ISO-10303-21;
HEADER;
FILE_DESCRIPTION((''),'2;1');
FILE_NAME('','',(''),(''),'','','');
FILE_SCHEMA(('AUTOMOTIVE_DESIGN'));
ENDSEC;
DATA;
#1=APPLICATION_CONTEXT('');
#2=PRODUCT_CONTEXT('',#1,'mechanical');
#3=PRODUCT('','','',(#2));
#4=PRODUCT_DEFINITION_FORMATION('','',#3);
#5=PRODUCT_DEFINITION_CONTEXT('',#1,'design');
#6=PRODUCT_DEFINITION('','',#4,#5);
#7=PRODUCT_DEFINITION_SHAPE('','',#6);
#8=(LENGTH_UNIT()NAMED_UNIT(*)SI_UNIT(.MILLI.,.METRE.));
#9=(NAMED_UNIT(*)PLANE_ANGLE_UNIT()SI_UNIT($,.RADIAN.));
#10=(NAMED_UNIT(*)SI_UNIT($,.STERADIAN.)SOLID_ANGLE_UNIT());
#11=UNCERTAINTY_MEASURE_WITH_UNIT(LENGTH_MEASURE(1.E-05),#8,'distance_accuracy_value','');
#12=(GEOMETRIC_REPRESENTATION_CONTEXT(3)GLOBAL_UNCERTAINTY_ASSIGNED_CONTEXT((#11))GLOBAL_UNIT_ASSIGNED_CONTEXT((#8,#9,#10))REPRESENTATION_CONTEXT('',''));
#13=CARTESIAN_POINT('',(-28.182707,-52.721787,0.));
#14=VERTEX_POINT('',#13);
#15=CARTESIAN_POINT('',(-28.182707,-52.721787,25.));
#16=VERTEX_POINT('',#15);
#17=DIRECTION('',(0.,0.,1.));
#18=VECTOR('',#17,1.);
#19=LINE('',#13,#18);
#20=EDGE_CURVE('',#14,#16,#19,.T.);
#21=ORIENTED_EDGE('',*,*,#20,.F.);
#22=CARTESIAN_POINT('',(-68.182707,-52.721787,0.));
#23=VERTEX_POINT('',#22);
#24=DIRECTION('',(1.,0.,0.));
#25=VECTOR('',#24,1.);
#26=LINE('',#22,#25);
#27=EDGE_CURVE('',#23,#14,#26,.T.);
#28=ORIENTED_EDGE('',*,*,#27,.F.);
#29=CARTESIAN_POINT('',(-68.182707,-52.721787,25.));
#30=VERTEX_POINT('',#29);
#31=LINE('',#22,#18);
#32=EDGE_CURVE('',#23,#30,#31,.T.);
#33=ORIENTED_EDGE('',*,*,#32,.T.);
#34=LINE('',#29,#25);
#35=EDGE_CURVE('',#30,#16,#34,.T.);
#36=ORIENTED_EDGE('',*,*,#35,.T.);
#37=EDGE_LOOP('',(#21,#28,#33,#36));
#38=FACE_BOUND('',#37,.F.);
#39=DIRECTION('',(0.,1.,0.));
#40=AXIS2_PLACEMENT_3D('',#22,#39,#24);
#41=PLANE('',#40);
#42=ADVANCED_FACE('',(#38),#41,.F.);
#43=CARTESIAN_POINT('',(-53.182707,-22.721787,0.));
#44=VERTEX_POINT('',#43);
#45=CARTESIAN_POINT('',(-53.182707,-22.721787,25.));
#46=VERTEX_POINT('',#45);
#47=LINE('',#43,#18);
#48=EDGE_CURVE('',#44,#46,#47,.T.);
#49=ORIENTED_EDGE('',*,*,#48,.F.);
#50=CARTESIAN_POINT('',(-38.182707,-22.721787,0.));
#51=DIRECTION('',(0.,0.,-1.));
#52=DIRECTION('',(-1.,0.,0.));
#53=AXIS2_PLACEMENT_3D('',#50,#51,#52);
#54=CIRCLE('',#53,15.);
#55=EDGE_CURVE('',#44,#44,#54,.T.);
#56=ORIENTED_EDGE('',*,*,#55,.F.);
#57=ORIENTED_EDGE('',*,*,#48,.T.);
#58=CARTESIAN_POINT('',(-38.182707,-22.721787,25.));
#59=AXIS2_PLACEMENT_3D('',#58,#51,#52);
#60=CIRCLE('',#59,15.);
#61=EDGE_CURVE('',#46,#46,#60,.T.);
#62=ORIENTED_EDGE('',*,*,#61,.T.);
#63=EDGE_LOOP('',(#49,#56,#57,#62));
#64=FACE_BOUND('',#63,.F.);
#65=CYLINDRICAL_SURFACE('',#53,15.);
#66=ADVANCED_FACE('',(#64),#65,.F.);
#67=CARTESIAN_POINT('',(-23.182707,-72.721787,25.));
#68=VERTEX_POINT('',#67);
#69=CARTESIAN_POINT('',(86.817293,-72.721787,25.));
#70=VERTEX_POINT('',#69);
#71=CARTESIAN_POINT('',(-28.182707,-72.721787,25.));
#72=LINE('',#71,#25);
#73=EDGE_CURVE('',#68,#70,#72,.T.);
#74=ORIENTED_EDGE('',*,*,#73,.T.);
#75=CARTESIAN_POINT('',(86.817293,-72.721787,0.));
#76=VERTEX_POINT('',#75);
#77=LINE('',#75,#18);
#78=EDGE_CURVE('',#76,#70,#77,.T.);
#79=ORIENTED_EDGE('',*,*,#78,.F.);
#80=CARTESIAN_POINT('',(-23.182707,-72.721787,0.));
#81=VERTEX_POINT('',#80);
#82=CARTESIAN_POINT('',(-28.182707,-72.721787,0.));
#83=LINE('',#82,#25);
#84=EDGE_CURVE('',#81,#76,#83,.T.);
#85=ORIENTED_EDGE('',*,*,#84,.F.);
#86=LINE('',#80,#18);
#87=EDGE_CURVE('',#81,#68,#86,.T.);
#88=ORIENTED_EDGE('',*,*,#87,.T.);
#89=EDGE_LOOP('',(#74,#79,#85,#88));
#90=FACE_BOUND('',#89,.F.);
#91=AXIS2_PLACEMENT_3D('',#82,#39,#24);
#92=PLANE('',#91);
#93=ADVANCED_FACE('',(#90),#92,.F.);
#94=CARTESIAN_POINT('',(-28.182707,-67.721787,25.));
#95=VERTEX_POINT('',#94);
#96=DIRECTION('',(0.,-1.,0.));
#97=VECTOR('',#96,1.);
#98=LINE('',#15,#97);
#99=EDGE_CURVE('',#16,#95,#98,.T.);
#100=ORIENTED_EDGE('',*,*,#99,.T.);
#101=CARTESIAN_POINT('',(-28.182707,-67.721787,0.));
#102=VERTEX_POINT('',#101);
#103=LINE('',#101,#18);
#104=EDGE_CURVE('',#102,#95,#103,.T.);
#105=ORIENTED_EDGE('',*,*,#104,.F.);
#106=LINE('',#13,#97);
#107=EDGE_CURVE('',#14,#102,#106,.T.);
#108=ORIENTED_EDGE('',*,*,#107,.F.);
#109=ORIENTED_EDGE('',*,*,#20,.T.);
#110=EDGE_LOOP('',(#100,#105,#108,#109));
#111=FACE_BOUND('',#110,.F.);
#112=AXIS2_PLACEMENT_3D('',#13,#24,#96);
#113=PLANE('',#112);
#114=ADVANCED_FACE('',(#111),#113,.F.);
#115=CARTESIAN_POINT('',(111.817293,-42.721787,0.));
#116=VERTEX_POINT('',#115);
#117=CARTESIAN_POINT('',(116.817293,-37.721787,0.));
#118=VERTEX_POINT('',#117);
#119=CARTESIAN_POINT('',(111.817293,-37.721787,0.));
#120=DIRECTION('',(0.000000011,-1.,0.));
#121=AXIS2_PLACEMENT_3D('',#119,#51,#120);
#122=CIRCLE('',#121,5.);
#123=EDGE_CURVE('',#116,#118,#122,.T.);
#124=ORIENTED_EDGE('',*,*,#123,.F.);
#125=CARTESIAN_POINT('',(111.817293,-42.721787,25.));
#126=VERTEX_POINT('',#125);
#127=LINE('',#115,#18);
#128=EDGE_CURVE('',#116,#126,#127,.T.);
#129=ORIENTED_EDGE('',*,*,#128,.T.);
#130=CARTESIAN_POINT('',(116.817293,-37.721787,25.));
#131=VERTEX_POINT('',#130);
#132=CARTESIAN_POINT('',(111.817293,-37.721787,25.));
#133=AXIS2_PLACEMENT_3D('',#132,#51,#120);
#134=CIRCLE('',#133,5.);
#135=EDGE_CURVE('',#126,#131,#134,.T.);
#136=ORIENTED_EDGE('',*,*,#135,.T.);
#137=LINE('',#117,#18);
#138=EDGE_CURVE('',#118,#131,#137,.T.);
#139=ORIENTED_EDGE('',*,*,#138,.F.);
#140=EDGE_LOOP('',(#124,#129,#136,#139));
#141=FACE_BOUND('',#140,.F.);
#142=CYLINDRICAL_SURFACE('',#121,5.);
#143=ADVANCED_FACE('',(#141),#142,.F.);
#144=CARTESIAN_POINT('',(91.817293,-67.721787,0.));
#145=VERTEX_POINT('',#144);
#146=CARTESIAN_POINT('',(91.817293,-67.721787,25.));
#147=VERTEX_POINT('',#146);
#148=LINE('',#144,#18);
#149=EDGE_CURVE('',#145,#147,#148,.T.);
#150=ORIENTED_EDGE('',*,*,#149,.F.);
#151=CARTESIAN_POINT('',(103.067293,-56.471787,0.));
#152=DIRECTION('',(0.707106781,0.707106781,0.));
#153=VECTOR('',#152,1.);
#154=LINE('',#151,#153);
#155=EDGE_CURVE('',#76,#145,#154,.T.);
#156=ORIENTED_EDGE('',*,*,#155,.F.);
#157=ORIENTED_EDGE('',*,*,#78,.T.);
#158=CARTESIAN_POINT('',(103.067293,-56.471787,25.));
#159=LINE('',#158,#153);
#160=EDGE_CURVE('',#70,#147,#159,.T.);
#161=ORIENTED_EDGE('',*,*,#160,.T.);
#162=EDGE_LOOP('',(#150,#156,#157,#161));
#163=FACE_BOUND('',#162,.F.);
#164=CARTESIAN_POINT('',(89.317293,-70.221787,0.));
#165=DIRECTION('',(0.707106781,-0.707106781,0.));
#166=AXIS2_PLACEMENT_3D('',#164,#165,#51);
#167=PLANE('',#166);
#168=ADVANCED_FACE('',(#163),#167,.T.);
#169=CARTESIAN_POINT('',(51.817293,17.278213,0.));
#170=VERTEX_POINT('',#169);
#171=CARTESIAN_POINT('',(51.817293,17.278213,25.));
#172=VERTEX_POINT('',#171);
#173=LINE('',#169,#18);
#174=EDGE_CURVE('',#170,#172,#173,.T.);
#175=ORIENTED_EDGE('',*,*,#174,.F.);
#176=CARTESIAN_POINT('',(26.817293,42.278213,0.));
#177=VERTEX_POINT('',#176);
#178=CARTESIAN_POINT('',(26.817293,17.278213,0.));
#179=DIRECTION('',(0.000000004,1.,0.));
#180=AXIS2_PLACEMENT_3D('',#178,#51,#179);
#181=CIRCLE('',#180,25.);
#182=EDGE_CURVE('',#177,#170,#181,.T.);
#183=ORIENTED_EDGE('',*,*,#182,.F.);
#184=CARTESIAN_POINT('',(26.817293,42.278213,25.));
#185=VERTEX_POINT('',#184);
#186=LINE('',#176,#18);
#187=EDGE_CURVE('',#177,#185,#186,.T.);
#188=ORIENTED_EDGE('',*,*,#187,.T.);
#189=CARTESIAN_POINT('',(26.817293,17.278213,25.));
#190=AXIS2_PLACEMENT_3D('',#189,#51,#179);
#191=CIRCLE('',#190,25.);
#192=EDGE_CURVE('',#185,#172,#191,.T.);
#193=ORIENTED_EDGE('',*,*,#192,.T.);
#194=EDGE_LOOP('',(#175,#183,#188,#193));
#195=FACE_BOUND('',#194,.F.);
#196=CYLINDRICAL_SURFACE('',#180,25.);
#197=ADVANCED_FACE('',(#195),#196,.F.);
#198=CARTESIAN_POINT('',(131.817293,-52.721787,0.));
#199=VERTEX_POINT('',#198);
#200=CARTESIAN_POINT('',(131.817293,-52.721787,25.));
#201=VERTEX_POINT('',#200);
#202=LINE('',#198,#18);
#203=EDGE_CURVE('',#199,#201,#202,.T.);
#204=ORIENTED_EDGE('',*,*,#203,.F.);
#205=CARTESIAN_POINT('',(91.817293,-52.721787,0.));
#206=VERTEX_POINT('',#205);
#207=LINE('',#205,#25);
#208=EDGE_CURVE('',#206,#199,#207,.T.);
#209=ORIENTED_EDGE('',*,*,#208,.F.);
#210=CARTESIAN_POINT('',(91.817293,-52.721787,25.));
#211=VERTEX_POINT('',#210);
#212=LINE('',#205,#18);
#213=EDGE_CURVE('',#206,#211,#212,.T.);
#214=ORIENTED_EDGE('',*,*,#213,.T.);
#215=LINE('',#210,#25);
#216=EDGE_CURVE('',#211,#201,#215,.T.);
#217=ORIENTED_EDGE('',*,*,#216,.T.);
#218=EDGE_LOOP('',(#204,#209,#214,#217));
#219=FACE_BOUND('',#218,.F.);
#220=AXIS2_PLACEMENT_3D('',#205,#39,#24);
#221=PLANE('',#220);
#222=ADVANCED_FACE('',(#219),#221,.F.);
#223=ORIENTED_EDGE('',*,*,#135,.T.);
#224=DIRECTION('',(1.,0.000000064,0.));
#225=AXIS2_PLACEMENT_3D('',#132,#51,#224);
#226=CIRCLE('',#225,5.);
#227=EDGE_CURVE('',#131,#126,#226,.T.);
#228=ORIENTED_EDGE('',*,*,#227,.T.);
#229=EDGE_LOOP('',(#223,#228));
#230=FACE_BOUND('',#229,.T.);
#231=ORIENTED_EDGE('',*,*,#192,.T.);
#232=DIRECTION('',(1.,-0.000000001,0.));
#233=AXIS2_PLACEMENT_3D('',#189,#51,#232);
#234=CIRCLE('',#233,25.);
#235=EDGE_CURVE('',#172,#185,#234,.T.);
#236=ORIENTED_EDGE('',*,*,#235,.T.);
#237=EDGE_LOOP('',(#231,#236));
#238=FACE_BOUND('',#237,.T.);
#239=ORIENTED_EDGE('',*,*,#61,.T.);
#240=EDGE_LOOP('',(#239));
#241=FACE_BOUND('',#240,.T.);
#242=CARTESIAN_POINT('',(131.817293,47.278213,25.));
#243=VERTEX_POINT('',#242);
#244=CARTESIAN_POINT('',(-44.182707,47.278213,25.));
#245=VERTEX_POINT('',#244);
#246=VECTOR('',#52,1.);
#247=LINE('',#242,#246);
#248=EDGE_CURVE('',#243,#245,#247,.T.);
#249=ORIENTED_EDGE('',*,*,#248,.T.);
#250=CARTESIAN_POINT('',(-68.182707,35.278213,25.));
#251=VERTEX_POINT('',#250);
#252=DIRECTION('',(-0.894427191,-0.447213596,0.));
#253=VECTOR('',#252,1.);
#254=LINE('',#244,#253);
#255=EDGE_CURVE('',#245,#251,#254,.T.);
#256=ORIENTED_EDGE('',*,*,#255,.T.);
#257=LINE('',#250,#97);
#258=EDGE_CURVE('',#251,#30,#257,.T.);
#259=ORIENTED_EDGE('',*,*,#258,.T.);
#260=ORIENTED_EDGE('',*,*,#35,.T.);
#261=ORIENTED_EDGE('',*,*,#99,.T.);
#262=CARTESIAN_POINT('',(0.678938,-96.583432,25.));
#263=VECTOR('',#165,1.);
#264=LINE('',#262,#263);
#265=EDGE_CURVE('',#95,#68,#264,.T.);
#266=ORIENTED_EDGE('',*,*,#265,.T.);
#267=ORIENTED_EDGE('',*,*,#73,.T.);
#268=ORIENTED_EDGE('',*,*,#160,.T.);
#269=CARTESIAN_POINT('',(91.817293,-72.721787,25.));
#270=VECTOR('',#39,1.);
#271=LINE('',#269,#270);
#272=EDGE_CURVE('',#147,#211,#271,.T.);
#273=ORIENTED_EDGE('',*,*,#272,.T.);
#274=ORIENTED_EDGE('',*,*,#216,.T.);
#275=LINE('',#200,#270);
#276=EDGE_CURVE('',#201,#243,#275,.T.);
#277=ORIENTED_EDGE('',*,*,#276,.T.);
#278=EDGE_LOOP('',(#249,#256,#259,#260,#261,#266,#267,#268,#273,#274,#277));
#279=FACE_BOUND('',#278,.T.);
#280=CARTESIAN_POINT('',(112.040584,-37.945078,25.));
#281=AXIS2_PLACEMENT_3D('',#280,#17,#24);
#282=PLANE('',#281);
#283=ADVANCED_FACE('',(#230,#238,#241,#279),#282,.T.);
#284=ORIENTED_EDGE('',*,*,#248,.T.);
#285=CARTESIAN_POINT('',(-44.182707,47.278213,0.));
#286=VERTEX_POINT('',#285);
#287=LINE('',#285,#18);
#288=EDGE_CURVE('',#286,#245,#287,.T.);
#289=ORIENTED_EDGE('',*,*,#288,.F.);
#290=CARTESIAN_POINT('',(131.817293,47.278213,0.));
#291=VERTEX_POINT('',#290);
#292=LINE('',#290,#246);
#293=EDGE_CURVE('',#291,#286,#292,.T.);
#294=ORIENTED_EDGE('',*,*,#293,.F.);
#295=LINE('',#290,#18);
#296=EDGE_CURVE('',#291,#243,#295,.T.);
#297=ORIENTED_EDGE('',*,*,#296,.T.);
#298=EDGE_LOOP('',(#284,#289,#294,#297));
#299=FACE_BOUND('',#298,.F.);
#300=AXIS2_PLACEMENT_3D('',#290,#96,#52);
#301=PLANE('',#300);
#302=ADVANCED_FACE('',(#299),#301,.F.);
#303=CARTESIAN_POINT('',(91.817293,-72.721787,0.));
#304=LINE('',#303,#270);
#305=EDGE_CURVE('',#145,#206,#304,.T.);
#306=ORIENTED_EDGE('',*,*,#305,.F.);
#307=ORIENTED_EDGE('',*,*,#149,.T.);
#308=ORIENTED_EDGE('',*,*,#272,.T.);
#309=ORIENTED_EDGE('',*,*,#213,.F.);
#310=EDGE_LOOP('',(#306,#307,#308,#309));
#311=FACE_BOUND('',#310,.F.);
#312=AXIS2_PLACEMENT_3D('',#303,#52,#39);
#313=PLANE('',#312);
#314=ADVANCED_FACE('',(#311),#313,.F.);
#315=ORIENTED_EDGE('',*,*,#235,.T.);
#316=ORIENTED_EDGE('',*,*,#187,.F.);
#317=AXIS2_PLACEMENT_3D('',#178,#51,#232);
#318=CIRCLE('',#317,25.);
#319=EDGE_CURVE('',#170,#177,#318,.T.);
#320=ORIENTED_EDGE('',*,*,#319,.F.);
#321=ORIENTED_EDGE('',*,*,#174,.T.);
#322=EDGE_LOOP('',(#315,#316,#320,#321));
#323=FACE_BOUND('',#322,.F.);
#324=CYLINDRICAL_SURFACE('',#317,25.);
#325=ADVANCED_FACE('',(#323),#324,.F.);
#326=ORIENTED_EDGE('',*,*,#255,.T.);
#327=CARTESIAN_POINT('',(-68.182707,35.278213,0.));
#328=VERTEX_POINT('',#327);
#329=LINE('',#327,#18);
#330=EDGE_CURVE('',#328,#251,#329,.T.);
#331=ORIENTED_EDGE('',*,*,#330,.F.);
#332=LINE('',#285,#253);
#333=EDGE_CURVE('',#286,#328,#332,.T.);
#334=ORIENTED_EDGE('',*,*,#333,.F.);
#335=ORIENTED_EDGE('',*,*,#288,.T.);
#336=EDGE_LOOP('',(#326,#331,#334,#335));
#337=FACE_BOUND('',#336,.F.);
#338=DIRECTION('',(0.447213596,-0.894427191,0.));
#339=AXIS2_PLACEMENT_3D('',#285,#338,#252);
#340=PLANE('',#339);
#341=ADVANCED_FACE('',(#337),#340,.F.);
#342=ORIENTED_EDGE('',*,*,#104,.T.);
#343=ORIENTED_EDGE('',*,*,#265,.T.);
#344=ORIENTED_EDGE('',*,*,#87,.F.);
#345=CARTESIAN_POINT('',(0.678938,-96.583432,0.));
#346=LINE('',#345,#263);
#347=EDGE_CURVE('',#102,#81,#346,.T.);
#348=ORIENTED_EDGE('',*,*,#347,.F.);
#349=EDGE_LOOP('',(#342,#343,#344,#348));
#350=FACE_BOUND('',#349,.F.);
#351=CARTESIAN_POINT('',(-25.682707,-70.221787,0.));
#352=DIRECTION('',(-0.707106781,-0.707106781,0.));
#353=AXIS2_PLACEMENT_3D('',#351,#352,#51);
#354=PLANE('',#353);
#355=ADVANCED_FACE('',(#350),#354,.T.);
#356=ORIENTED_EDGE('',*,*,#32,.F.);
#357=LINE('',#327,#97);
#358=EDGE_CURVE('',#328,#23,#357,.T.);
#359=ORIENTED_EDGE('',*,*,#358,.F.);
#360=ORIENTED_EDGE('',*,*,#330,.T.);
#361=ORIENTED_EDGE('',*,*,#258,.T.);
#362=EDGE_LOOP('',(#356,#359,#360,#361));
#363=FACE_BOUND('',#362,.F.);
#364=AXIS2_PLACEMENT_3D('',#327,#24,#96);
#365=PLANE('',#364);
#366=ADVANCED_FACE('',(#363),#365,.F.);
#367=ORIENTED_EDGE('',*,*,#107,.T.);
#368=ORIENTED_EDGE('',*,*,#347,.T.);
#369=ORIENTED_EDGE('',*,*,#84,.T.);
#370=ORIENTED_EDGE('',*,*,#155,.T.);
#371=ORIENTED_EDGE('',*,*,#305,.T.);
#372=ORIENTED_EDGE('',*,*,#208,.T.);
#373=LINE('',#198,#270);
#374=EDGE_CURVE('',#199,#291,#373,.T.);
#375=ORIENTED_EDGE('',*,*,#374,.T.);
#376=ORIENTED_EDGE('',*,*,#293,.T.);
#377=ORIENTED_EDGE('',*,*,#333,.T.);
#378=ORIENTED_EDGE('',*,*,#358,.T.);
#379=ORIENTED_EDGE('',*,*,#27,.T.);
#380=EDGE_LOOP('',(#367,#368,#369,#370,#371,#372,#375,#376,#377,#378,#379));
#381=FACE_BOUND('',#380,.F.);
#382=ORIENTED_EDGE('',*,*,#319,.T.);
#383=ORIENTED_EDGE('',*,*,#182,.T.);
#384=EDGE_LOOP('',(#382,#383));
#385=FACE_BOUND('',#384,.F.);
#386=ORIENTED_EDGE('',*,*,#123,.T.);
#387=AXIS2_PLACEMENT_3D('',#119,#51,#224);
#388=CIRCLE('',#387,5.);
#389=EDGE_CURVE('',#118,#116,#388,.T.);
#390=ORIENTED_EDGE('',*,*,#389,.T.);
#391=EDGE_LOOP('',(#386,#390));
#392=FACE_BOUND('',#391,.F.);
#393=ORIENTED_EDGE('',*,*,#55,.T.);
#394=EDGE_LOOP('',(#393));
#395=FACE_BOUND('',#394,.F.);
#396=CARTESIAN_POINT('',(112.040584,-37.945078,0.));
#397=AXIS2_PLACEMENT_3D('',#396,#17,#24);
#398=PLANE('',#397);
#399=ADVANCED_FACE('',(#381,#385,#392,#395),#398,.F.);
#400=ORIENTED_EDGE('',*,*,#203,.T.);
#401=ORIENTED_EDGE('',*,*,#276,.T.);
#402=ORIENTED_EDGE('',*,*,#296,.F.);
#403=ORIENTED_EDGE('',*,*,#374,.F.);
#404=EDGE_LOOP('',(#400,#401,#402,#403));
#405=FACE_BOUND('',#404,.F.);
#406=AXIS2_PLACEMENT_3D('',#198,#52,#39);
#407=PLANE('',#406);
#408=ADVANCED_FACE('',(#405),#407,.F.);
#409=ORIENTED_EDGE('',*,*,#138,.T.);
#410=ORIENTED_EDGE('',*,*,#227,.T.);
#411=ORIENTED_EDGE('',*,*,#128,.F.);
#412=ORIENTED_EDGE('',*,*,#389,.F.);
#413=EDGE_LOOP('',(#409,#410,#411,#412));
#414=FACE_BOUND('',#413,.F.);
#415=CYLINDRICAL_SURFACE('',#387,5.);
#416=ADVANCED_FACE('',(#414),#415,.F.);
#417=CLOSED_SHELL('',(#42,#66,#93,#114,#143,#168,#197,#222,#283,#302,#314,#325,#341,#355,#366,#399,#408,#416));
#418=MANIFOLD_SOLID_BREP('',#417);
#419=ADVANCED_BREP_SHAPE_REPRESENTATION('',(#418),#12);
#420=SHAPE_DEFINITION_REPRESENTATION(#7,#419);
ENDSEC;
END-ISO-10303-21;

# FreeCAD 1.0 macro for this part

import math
import FreeCAD as App
import Part
import Sketcher
from FreeCAD import Vector


def edges_at(feature, points):
    """Names of the edges that pass closest to the given points."""
    edges = feature.Shape.Edges
    near = lambda p: min(range(len(edges)), key=lambda i: edges[i].distToShape(Part.Vertex(*p))[0])
    return sorted({f"Edge{near(p) + 1}" for p in points})


def add_polygon(sketch, points):
    """Adds a closed chain of lines whose ends are joined by coincident constraints."""
    first, n = sketch.GeometryCount, len(points)
    for a, b in zip(points, points[1:] + points[:1]):
        sketch.addGeometry(Part.LineSegment(App.Vector(*a, 0), App.Vector(*b, 0)), False)
    for i in range(n):
        sketch.addConstraint(Sketcher.Constraint("Coincident", first + i, 2, first + (i + 1) % n, 1))

doc = App.newDocument("Part")
body = doc.addObject("PartDesign::Body", "Body")

# Sketch on XY plane
sketch1 = body.newObject("Sketcher::SketchObject", "Sketch")
sketch1.AttachmentSupport = (doc.getObject("XY_Plane"), [""])
sketch1.MapMode = "FlatFace"
add_polygon(sketch1, [(-68.2, -52.7), (-28.2, -52.7), (-28.2, -72.7), (91.8, -72.7), (91.8, -52.7), (131.8, -52.7), (131.8, 47.3), (-44.2, 47.3), (-68.2, 35.3)])  # lines 0-8
sketch1.addGeometry(Part.Circle(Vector(-38.2, -22.7, 0), Vector(0, 0, 1), 15), False)  # 9
sketch1.addGeometry(Part.ArcOfCircle(Part.Circle(Vector(111.8, -37.7, 0), Vector(0, 0, 1), 5), math.radians(0), math.radians(270)), False)  # 10
sketch1.addGeometry(Part.ArcOfCircle(Part.Circle(Vector(111.8, -37.7, 0), Vector(0, 0, 1), 5), math.radians(-90), math.radians(0)), False)  # 11
sketch1.addGeometry(Part.ArcOfCircle(Part.Circle(Vector(26.8, 17.3, 0), Vector(0, 0, 1), 25), math.radians(0), math.radians(90)), False)  # 12
sketch1.addGeometry(Part.ArcOfCircle(Part.Circle(Vector(26.8, 17.3, 0), Vector(0, 0, 1), 25), math.radians(90), math.radians(360)), False)  # 13
sketch1.addConstraint(Sketcher.Constraint("Tangent", 10, 1, 11, 2))
sketch1.addConstraint(Sketcher.Constraint("Coincident", 11, 1, 10, 2))
sketch1.addConstraint(Sketcher.Constraint("Tangent", 12, 1, 13, 2))
sketch1.addConstraint(Sketcher.Constraint("Coincident", 13, 1, 12, 2))
sketch1.addConstraint(Sketcher.Constraint("Horizontal", 0))
sketch1.addConstraint(Sketcher.Constraint("Vertical", 1))
sketch1.addConstraint(Sketcher.Constraint("Horizontal", 2))
sketch1.addConstraint(Sketcher.Constraint("Vertical", 3))
sketch1.addConstraint(Sketcher.Constraint("Horizontal", 4))
sketch1.addConstraint(Sketcher.Constraint("Vertical", 5))
sketch1.addConstraint(Sketcher.Constraint("Horizontal", 6))
sketch1.addConstraint(Sketcher.Constraint("Vertical", 8))
sketch1.addConstraint(Sketcher.Constraint("Horizontal", 0, 2, 3, 2))
sketch1.addConstraint(Sketcher.Constraint("Horizontal", 11, 3, 10, 1))
sketch1.addConstraint(Sketcher.Constraint("Horizontal", 13, 3, 12, 1))
sketch1.addConstraint(Sketcher.Constraint("Vertical", 10, 3, 11, 1))
sketch1.addConstraint(Sketcher.Constraint("Vertical", 12, 3, 13, 1))
sketch1.addConstraint(Sketcher.Constraint("Equal", 0, 4))
sketch1.addConstraint(Sketcher.Constraint("Diameter", 9, 30.0))
sketch1.addConstraint(Sketcher.Constraint("Radius", 10, 5.0))
sketch1.addConstraint(Sketcher.Constraint("Radius", 12, 25.0))
sketch1.addConstraint(Sketcher.Constraint("DistanceX", 0, 1, 0, 2, 40.0))
sketch1.addConstraint(Sketcher.Constraint("DistanceX", 2, 1, 2, 2, 120.0))
sketch1.addConstraint(Sketcher.Constraint("DistanceX", 6, 2, 6, 1, 176.0))
sketch1.addConstraint(Sketcher.Constraint("DistanceY", 1, 2, 1, 1, 20.0))
sketch1.addConstraint(Sketcher.Constraint("DistanceY", 5, 1, 5, 2, 100.0))
sketch1.addConstraint(Sketcher.Constraint("DistanceY", 8, 2, 8, 1, 88.0))
sketch1.addConstraint(Sketcher.Constraint("DistanceX", 9, 3, 10, 3, 150.0))
sketch1.addConstraint(Sketcher.Constraint("DistanceY", 10, 3, 9, 3, 15.0))
sketch1.addConstraint(Sketcher.Constraint("DistanceX", 9, 3, 12, 3, 65.0))
sketch1.addConstraint(Sketcher.Constraint("DistanceY", 9, 3, 12, 3, 40.0))
sketch1.addConstraint(Sketcher.Constraint("DistanceX", 9, 3, 0, 2, 10.0))
sketch1.addConstraint(Sketcher.Constraint("DistanceY", 0, 2, 9, 3, 30.0))
sketch1.addConstraint(Sketcher.Constraint("DistanceX", 9, 3, -1, 1, 38.182707))
sketch1.addConstraint(Sketcher.Constraint("DistanceY", 9, 3, -1, 1, 22.721787))
pad1 = body.newObject("PartDesign::Pad", "Pad")
pad1.Profile = sketch1
pad1.Length = 25
doc.recompute()

chamfer = body.newObject("PartDesign::Chamfer", "Chamfer")
chamfer.Base = (pad1, edges_at(pad1, [(-28.183, -72.722, 12.5), (91.817, -72.722, 12.5)]))
chamfer.ChamferType = "Two distances"
chamfer.Size = 5
chamfer.Size2 = 5

doc.recompute()
